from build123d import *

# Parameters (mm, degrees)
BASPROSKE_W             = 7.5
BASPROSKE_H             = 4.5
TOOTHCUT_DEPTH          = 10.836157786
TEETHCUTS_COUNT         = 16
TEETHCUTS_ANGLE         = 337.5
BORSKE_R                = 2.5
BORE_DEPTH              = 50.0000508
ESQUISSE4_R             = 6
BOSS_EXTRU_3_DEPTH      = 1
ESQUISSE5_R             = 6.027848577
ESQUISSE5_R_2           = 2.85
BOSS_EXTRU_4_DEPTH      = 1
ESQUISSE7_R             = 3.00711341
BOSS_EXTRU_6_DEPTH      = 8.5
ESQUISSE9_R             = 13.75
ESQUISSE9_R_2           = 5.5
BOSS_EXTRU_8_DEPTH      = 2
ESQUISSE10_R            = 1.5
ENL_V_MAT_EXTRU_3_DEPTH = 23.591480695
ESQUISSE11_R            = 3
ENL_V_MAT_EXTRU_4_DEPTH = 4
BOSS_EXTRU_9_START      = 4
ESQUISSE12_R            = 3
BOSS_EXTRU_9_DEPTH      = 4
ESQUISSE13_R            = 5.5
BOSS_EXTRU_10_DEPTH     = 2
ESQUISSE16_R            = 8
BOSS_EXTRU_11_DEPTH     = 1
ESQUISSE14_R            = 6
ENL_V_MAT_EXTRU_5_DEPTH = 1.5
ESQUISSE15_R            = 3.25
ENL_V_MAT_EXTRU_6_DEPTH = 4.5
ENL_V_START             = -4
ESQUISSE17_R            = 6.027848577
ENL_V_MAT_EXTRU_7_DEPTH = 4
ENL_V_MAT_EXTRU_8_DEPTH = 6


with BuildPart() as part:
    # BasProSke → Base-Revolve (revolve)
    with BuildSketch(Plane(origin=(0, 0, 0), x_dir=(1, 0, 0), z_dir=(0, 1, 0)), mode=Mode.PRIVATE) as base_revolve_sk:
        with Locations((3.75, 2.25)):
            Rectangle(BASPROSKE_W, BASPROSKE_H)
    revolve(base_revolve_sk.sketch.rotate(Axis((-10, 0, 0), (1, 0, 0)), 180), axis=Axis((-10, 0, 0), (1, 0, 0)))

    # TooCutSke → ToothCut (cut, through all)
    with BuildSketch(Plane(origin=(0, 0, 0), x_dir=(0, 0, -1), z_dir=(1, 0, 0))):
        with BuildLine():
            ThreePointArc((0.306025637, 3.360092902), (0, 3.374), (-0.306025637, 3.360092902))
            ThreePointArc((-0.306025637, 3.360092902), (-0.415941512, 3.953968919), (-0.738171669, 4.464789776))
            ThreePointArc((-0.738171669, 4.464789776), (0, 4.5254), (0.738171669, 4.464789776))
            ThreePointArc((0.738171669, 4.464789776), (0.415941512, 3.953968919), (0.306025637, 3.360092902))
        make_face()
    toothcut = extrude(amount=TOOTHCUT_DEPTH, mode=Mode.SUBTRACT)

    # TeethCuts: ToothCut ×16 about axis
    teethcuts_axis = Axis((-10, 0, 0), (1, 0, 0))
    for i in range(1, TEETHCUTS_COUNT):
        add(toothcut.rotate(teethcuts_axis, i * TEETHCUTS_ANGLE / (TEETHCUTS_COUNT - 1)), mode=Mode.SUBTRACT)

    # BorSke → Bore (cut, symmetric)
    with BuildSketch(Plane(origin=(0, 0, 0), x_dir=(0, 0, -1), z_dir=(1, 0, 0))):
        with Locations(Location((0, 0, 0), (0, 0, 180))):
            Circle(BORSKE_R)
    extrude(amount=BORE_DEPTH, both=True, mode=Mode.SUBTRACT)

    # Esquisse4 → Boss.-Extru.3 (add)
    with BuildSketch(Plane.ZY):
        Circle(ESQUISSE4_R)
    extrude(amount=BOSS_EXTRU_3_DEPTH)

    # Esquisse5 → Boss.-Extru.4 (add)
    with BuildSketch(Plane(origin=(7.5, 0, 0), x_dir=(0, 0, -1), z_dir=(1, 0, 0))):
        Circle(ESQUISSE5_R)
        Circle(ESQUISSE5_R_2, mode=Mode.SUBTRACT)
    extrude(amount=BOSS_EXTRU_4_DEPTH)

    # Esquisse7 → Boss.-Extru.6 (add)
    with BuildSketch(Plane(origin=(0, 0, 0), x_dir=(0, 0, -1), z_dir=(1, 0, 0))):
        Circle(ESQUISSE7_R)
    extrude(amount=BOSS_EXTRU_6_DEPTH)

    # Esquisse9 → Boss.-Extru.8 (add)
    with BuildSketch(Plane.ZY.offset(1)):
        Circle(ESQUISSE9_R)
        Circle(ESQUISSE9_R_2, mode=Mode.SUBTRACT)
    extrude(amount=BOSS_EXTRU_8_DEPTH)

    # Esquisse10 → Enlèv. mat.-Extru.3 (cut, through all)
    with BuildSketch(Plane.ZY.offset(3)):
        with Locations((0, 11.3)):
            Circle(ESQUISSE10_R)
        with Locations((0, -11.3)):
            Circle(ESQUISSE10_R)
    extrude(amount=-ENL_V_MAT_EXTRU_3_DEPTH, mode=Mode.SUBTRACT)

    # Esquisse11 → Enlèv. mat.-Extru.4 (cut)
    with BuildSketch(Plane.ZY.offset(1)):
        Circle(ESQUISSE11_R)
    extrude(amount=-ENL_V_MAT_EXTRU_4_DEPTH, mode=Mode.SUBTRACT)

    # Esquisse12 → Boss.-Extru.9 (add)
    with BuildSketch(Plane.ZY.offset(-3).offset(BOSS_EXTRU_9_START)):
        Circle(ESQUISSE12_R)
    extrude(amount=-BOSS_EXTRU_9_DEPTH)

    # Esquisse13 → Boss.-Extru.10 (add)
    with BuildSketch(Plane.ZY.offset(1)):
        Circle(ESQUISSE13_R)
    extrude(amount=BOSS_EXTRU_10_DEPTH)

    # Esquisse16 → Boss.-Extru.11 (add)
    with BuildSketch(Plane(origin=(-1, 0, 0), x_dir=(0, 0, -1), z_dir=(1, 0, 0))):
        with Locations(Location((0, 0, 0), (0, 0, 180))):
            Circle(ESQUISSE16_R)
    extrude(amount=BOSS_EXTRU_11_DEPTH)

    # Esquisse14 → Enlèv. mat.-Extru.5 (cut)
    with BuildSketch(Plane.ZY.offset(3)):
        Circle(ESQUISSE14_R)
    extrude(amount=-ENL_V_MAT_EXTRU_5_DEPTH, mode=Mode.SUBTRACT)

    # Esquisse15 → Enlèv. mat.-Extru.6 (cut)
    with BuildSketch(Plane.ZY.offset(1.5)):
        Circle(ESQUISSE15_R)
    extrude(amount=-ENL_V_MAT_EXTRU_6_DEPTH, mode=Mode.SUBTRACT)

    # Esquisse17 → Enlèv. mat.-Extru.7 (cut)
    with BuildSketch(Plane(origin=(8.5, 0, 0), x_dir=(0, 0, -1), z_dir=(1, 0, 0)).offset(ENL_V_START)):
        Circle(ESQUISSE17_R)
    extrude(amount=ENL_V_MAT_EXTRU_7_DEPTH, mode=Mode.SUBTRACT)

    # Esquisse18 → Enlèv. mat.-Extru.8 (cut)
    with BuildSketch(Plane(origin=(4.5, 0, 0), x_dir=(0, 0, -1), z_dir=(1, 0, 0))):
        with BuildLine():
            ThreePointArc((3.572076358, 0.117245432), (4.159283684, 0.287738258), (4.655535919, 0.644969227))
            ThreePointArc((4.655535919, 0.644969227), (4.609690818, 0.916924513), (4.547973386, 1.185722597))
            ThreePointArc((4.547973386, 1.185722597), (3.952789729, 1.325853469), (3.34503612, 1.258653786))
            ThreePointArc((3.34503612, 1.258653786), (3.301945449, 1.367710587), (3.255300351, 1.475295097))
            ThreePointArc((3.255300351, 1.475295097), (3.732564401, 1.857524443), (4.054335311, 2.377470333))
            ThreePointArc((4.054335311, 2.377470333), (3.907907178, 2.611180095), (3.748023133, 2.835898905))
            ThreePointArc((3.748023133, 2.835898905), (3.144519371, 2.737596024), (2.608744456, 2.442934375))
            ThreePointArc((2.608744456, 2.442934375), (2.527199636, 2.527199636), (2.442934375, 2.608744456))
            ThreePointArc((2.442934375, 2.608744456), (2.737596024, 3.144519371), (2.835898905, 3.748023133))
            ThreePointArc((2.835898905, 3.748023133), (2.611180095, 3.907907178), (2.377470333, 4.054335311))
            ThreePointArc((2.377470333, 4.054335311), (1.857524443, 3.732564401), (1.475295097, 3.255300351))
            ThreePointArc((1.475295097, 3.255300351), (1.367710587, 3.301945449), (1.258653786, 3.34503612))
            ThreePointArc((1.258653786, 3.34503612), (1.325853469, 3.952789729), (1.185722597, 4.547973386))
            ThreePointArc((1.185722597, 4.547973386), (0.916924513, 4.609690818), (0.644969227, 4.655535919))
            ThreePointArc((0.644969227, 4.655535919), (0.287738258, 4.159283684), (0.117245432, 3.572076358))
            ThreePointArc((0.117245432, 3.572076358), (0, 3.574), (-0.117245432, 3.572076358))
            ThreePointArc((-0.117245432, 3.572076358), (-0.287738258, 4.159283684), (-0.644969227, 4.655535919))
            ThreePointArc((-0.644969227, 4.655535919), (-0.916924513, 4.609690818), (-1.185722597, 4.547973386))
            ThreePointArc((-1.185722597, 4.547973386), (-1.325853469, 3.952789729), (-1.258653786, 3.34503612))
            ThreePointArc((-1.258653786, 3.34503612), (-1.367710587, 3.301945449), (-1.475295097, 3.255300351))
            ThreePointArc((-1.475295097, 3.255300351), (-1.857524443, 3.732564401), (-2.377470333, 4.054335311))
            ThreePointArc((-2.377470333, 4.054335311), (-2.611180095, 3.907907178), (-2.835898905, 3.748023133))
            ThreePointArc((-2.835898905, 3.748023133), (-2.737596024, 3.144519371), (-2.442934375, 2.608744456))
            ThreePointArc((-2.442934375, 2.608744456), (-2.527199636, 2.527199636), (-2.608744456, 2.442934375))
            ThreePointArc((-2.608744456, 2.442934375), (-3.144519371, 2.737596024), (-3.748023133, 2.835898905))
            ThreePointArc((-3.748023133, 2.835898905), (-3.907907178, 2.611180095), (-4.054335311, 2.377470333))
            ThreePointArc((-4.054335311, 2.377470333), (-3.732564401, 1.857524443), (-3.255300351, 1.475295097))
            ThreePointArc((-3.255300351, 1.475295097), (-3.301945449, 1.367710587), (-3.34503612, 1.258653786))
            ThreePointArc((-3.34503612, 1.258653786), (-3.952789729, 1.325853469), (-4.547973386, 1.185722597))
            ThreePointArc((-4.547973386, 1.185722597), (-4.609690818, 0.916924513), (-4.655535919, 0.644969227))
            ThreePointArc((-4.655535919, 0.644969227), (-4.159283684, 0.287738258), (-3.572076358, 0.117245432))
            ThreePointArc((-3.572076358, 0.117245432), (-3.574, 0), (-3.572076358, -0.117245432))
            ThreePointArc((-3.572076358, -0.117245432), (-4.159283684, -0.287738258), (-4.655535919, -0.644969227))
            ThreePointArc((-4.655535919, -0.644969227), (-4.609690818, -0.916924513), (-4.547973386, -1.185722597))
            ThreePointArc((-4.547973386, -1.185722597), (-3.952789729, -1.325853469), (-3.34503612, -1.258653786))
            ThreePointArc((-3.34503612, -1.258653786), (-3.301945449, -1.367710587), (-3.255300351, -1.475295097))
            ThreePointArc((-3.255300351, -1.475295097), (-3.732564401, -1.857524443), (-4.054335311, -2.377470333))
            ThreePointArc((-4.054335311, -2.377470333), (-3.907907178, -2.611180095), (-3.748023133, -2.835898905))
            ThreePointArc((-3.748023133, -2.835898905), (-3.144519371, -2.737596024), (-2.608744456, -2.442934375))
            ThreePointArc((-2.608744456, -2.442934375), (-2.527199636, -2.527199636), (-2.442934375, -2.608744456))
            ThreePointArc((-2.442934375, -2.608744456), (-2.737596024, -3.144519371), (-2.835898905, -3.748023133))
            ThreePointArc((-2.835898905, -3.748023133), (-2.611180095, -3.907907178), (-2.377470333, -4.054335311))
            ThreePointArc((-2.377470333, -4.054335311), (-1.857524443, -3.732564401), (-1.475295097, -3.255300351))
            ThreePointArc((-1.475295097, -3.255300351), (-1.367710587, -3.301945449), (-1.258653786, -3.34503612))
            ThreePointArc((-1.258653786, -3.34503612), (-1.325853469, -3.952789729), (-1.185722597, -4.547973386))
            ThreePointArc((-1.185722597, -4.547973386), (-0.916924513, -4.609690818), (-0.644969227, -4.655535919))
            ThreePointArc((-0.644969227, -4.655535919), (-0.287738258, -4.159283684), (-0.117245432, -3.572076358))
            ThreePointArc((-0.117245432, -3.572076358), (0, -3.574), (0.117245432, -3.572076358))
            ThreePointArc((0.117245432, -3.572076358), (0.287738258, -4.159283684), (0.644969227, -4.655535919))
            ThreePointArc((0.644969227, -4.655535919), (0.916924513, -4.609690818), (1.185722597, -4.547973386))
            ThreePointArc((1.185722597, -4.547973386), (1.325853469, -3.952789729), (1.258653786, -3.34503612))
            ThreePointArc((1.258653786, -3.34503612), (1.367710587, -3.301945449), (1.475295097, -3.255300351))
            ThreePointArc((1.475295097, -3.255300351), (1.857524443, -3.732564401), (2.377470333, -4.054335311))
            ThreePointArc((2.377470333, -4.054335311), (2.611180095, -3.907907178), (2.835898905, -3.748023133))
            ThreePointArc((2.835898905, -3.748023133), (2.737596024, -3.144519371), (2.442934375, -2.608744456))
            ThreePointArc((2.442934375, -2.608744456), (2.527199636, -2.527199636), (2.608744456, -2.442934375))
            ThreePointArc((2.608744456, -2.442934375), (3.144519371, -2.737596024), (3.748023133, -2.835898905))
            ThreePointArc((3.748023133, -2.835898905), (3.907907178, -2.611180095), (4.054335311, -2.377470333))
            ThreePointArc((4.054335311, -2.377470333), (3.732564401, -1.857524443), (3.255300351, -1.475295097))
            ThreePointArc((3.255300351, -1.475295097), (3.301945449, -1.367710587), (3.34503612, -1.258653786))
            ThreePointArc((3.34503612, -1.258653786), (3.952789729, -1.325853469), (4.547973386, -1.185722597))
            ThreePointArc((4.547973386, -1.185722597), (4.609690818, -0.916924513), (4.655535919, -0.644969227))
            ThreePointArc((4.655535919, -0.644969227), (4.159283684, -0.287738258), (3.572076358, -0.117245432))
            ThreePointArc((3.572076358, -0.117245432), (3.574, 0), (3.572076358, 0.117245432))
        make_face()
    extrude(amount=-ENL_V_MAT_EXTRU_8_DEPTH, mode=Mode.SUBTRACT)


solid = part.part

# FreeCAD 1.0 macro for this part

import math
import FreeCAD as App
import Part
import Sketcher
from FreeCAD import Vector


def add_polygon(sketch, points):
    """Adds a closed chain of lines whose ends are joined by coincident constraints."""
    first, n = sketch.GeometryCount, len(points)
    for a, b in zip(points, points[1:] + points[:1]):
        sketch.addGeometry(Part.LineSegment(App.Vector(*a, 0), App.Vector(*b, 0)), False)
    for i in range(n):
        sketch.addConstraint(Sketcher.Constraint("Coincident", first + i, 2, first + (i + 1) % n, 1))

doc = App.newDocument("Part")
body = doc.addObject("PartDesign::Body", "Body")

# Sketch on XZ plane
sketch1 = doc.addObject("Sketcher::SketchObject", "Sketch")
body.addObject(sketch1)
sketch1.AttachmentSupport = (doc.XZ_Plane, [""])
sketch1.MapMode = "FlatFace"
add_polygon(sketch1, [(0, -4.5), (0, 0), (7.5, 0), (7.5, -4.5)])  # lines 0-3
sketch1.addConstraint([
    Sketcher.Constraint("Vertical", 0),
    Sketcher.Constraint("Horizontal", 1),
    Sketcher.Constraint("Vertical", 2),
    Sketcher.Constraint("Horizontal", 3),
    Sketcher.Constraint("Coincident", 0, 2, -1, 1),
    Sketcher.Constraint("DistanceX", 1, 1, 1, 2, 7.5),
    Sketcher.Constraint("DistanceY", 0, 1, 0, 2, 4.5),
])
revolution = doc.addObject("PartDesign::Revolution", "Revolution")
body.addObject(revolution)
revolution.Profile = sketch1
revolution.ReferenceAxis = (sketch1, ["H_Axis"])
revolution.Angle = 360

# Sketch on YZ plane
sketch2 = doc.addObject("Sketcher::SketchObject", "Sketch001")
body.addObject(sketch2)
sketch2.AttachmentSupport = (doc.YZ_Plane, [""])
sketch2.MapMode = "FlatFace"
sketch2.addGeometry([
    Part.ArcOfCircle(Part.Circle(Vector(0, 0, 0), Vector(0, 0, 1), 3.4), math.radians(-5.2), math.radians(5.2)),
    Part.ArcOfCircle(Part.Circle(Vector(3.4, -1.9, 0), Vector(0, 0, 1), 1.6), math.radians(47), math.radians(90)),
    Part.ArcOfCircle(Part.Circle(Vector(0, 0, 0), Vector(0, 0, 1), 4.5), math.radians(-9.39), math.radians(9.39)),
    Part.ArcOfCircle(Part.Circle(Vector(3.4, 1.9, 0), Vector(0, 0, 1), 1.6), math.radians(-90), math.radians(-47)),
], False)
sketch2.addConstraint([
    Sketcher.Constraint("Coincident", 0, 1, 1, 2),
    Sketcher.Constraint("Coincident", 1, 1, 2, 1),
    Sketcher.Constraint("Coincident", 2, 2, 3, 2),
    Sketcher.Constraint("Coincident", 3, 1, 0, 2),
    Sketcher.Constraint("Coincident", 0, 3, -1, 1),
    Sketcher.Constraint("Coincident", 2, 3, -1, 1),
    Sketcher.Constraint("Equal", 1, 3),
    Sketcher.Constraint("Symmetric", 1, 3, 3, 3, -1),
    Sketcher.Constraint("Radius", 1, 1.6),
    Sketcher.Constraint("Radius", 0, 3.374),
    Sketcher.Constraint("Radius", 2, 4.5254),
    Sketcher.Constraint("DistanceX", -1, 1, 1, 3, 3.371078),
    Sketcher.Constraint("DistanceX", -1, 1, 1, 1, 4.46479),
])
pocket1 = doc.addObject("PartDesign::Pocket", "Pocket")
body.addObject(pocket1)
pocket1.Profile = sketch2
pocket1.Type = "ThroughAll"
pocket1.Reversed = True
doc.recompute()

polarpattern = doc.addObject("PartDesign::PolarPattern", "PolarPattern")
body.addObject(polarpattern)
polarpattern.Originals = [pocket1]
polarpattern.Axis = (doc.X_Axis, [""])
polarpattern.Angle = 360
polarpattern.Occurrences = 16
body.Tip = polarpattern

# Sketch on YZ plane
sketch3 = doc.addObject("Sketcher::SketchObject", "Sketch002")
body.addObject(sketch3)
sketch3.AttachmentSupport = (doc.YZ_Plane, [""])
sketch3.MapMode = "FlatFace"
sketch3.addGeometry(Part.Circle(Vector(0, 0, 0), Vector(0, 0, 1), 2.5), False)
sketch3.addConstraint([
    Sketcher.Constraint("Coincident", 0, 3, -1, 1),
    Sketcher.Constraint("Diameter", 0, 5.0),
])
pocket2 = doc.addObject("PartDesign::Pocket", "Pocket001")
body.addObject(pocket2)
pocket2.Profile = sketch3
pocket2.Length = 100.000102
pocket2.Midplane = True

# Sketch on YZ plane
sketch4 = doc.addObject("Sketcher::SketchObject", "Sketch003")
body.addObject(sketch4)
sketch4.AttachmentSupport = (doc.YZ_Plane, [""])
sketch4.MapMode = "FlatFace"
sketch4.addGeometry(Part.Circle(Vector(0, 0, 0), Vector(0, 0, 1), 6), False)
sketch4.addConstraint([
    Sketcher.Constraint("Coincident", 0, 3, -1, 1),
    Sketcher.Constraint("Diameter", 0, 12.0),
])
pad1 = doc.addObject("PartDesign::Pad", "Pad")
body.addObject(pad1)
pad1.Profile = sketch4
pad1.Length = 1
pad1.Reversed = True

# Sketch on YZ plane
sketch5 = doc.addObject("Sketcher::SketchObject", "Sketch004")
body.addObject(sketch5)
sketch5.AttachmentSupport = (doc.YZ_Plane, [""])
sketch5.MapMode = "FlatFace"
sketch5.AttachmentOffset = App.Placement(Vector(0, 0, 7.5), App.Rotation())
sketch5.addGeometry([
    Part.Circle(Vector(0, 0, 0), Vector(0, 0, 1), 6),
    Part.Circle(Vector(0, 0, 0), Vector(0, 0, 1), 2.9),
], False)
sketch5.addConstraint([
    Sketcher.Constraint("Coincident", 0, 3, -1, 1),
    Sketcher.Constraint("Coincident", 1, 3, -1, 1),
    Sketcher.Constraint("Diameter", 1, 5.7),
    Sketcher.Constraint("Diameter", 0, 12.055697),
])
pad2 = doc.addObject("PartDesign::Pad", "Pad001")
body.addObject(pad2)
pad2.Profile = sketch5
pad2.Length = 1

# Sketch on YZ plane
sketch6 = doc.addObject("Sketcher::SketchObject", "Sketch005")
body.addObject(sketch6)
sketch6.AttachmentSupport = (doc.YZ_Plane, [""])
sketch6.MapMode = "FlatFace"
sketch6.addGeometry(Part.Circle(Vector(0, 0, 0), Vector(0, 0, 1), 3), False)
sketch6.addConstraint([
    Sketcher.Constraint("Coincident", 0, 3, -1, 1),
    Sketcher.Constraint("Diameter", 0, 6.014227),
])
pad3 = doc.addObject("PartDesign::Pad", "Pad002")
body.addObject(pad3)
pad3.Profile = sketch6
pad3.Length = 8.5

# Sketch on YZ plane
sketch7 = doc.addObject("Sketcher::SketchObject", "Sketch006")
body.addObject(sketch7)
sketch7.AttachmentSupport = (doc.YZ_Plane, [""])
sketch7.MapMode = "FlatFace"
sketch7.AttachmentOffset = App.Placement(Vector(0, 0, -1), App.Rotation())
sketch7.addGeometry([
    Part.Circle(Vector(0, 0, 0), Vector(0, 0, 1), 14),
    Part.Circle(Vector(0, 0, 0), Vector(0, 0, 1), 6),
], False)
sketch7.addConstraint([
    Sketcher.Constraint("Coincident", 0, 3, -1, 1),
    Sketcher.Constraint("Coincident", 1, 3, -1, 1),
    Sketcher.Constraint("Diameter", 1, 11.0),
    Sketcher.Constraint("Diameter", 0, 27.5),
])
pad4 = doc.addObject("PartDesign::Pad", "Pad003")
body.addObject(pad4)
pad4.Profile = sketch7
pad4.Length = 2
pad4.Reversed = True

# Sketch on YZ plane
sketch8 = doc.addObject("Sketcher::SketchObject", "Sketch007")
body.addObject(sketch8)
sketch8.AttachmentSupport = (doc.YZ_Plane, [""])
sketch8.MapMode = "FlatFace"
sketch8.AttachmentOffset = App.Placement(Vector(0, 0, -3), App.Rotation())
sketch8.addGeometry([
    Part.Circle(Vector(11.3, 0, 0), Vector(0, 0, 1), 1.5),
    Part.Circle(Vector(-11.3, 0, 0), Vector(0, 0, 1), 1.5),
], False)
sketch8.addConstraint([
    Sketcher.Constraint("Equal", 0, 1),
    Sketcher.Constraint("Symmetric", 0, 3, 1, 3, -1, 1),
    Sketcher.Constraint("PointOnObject", 0, 3, -1),
    Sketcher.Constraint("Diameter", 0, 3.0),
    Sketcher.Constraint("DistanceX", -1, 1, 0, 3, 11.3),
])
pocket3 = doc.addObject("PartDesign::Pocket", "Pocket002")
body.addObject(pocket3)
pocket3.Profile = sketch8
pocket3.Type = "ThroughAll"
pocket3.Reversed = True

# Sketch on YZ plane
sketch9 = doc.addObject("Sketcher::SketchObject", "Sketch008")
body.addObject(sketch9)
sketch9.AttachmentSupport = (doc.YZ_Plane, [""])
sketch9.MapMode = "FlatFace"
sketch9.AttachmentOffset = App.Placement(Vector(0, 0, -1), App.Rotation())
sketch9.addGeometry(Part.Circle(Vector(0, 0, 0), Vector(0, 0, 1), 3), False)
sketch9.addConstraint([
    Sketcher.Constraint("Coincident", 0, 3, -1, 1),
    Sketcher.Constraint("Diameter", 0, 6.0),
])
pocket4 = doc.addObject("PartDesign::Pocket", "Pocket003")
body.addObject(pocket4)
pocket4.Profile = sketch9
pocket4.Length = 4
pocket4.Reversed = True

# Sketch on YZ plane
sketch10 = doc.addObject("Sketcher::SketchObject", "Sketch009")
body.addObject(sketch10)
sketch10.AttachmentSupport = (doc.YZ_Plane, [""])
sketch10.MapMode = "FlatFace"
sketch10.AttachmentOffset = App.Placement(Vector(0, 0, -1), App.Rotation())
sketch10.addGeometry(Part.Circle(Vector(0, 0, 0), Vector(0, 0, 1), 3), False)
sketch10.addConstraint([
    Sketcher.Constraint("Coincident", 0, 3, -1, 1),
    Sketcher.Constraint("Diameter", 0, 6.0),
])
pad5 = doc.addObject("PartDesign::Pad", "Pad004")
body.addObject(pad5)
pad5.Profile = sketch10
pad5.Length = 4

# Sketch on YZ plane
sketch11 = doc.addObject("Sketcher::SketchObject", "Sketch010")
body.addObject(sketch11)
sketch11.AttachmentSupport = (doc.YZ_Plane, [""])
sketch11.MapMode = "FlatFace"
sketch11.AttachmentOffset = App.Placement(Vector(0, 0, -1), App.Rotation())
sketch11.addGeometry(Part.Circle(Vector(0, 0, 0), Vector(0, 0, 1), 6), False)
sketch11.addConstraint([
    Sketcher.Constraint("Coincident", 0, 3, -1, 1),
    Sketcher.Constraint("Diameter", 0, 11.0),
])
pad6 = doc.addObject("PartDesign::Pad", "Pad005")
body.addObject(pad6)
pad6.Profile = sketch11
pad6.Length = 2
pad6.Reversed = True

# Sketch on YZ plane
sketch12 = doc.addObject("Sketcher::SketchObject", "Sketch011")
body.addObject(sketch12)
sketch12.AttachmentSupport = (doc.YZ_Plane, [""])
sketch12.MapMode = "FlatFace"
sketch12.AttachmentOffset = App.Placement(Vector(0, 0, -1), App.Rotation())
sketch12.addGeometry(Part.Circle(Vector(0, 0, 0), Vector(0, 0, 1), 8), False)
sketch12.addConstraint([
    Sketcher.Constraint("Coincident", 0, 3, -1, 1),
    Sketcher.Constraint("Diameter", 0, 16.0),
])
pad7 = doc.addObject("PartDesign::Pad", "Pad006")
body.addObject(pad7)
pad7.Profile = sketch12
pad7.Length = 1

# Sketch on YZ plane
sketch13 = doc.addObject("Sketcher::SketchObject", "Sketch012")
body.addObject(sketch13)
sketch13.AttachmentSupport = (doc.YZ_Plane, [""])
sketch13.MapMode = "FlatFace"
sketch13.AttachmentOffset = App.Placement(Vector(0, 0, -3), App.Rotation())
sketch13.addGeometry(Part.Circle(Vector(0, 0, 0), Vector(0, 0, 1), 6), False)
sketch13.addConstraint([
    Sketcher.Constraint("Coincident", 0, 3, -1, 1),
    Sketcher.Constraint("Diameter", 0, 12.0),
])
pocket5 = doc.addObject("PartDesign::Pocket", "Pocket004")
body.addObject(pocket5)
pocket5.Profile = sketch13
pocket5.Length = 1.5
pocket5.Reversed = True

# Sketch on YZ plane
sketch14 = doc.addObject("Sketcher::SketchObject", "Sketch013")
body.addObject(sketch14)
sketch14.AttachmentSupport = (doc.YZ_Plane, [""])
sketch14.MapMode = "FlatFace"
sketch14.AttachmentOffset = App.Placement(Vector(0, 0, -1.5), App.Rotation())
sketch14.addGeometry(Part.Circle(Vector(0, 0, 0), Vector(0, 0, 1), 3.2), False)
sketch14.addConstraint([
    Sketcher.Constraint("Coincident", 0, 3, -1, 1),
    Sketcher.Constraint("Diameter", 0, 6.5),
])
pocket6 = doc.addObject("PartDesign::Pocket", "Pocket005")
body.addObject(pocket6)
pocket6.Profile = sketch14
pocket6.Length = 4.5
pocket6.Reversed = True

# Sketch on YZ plane
sketch15 = doc.addObject("Sketcher::SketchObject", "Sketch014")
body.addObject(sketch15)
sketch15.AttachmentSupport = (doc.YZ_Plane, [""])
sketch15.MapMode = "FlatFace"
sketch15.AttachmentOffset = App.Placement(Vector(0, 0, 4.5), App.Rotation())
sketch15.addGeometry(Part.Circle(Vector(0, 0, 0), Vector(0, 0, 1), 6), False)
sketch15.addConstraint([
    Sketcher.Constraint("Coincident", 0, 3, -1, 1),
    Sketcher.Constraint("Diameter", 0, 12.055697),
])
pocket7 = doc.addObject("PartDesign::Pocket", "Pocket006")
body.addObject(pocket7)
pocket7.Profile = sketch15
pocket7.Length = 4
pocket7.Reversed = True

# Sketch on YZ plane
sketch16 = doc.addObject("Sketcher::SketchObject", "Sketch015")
body.addObject(sketch16)
sketch16.AttachmentSupport = (doc.YZ_Plane, [""])
sketch16.MapMode = "FlatFace"
sketch16.AttachmentOffset = App.Placement(Vector(0, 0, 4.5), App.Rotation())
sketch16.addGeometry([
    Part.ArcOfCircle(Part.Circle(Vector(1.91, -3.37, 0), Vector(0, 0, 1), 1.8), math.radians(-174), math.radians(-134)),  # 0
    Part.ArcOfCircle(Part.Circle(Vector(0, 0, 0), Vector(0, 0, 1), 4.7), math.radians(-82.11), math.radians(-75.39)),  # 1
    Part.ArcOfCircle(Part.Circle(Vector(-0.47, -3.84, 0), Vector(0, 0, 1), 1.8), math.radians(-23), math.radians(16)),  # 2
    Part.ArcOfCircle(Part.Circle(Vector(0, 0, 0), Vector(0, 0, 1), 3.57), math.radians(-69.38), math.radians(-65.62)),  # 3
    Part.ArcOfCircle(Part.Circle(Vector(3.05, -2.39, 0), Vector(0, 0, 1), 1.8), math.radians(-151), math.radians(-112)),  # 4
    Part.ArcOfCircle(Part.Circle(Vector(0, 0, 0), Vector(0, 0, 1), 4.7), math.radians(-59.61), math.radians(-52.89)),  # 5
    Part.ArcOfCircle(Part.Circle(Vector(1.04, -3.73, 0), Vector(0, 0, 1), 1.8), math.radians(-1), math.radians(39)),  # 6
    Part.ArcOfCircle(Part.Circle(Vector(0, 0, 0), Vector(0, 0, 1), 3.57), math.radians(-46.88), math.radians(-43.12)),  # 7
    Part.ArcOfCircle(Part.Circle(Vector(3.73, -1.04, 0), Vector(0, 0, 1), 1.8), math.radians(-129), math.radians(-89)),  # 8
    Part.ArcOfCircle(Part.Circle(Vector(0, 0, 0), Vector(0, 0, 1), 4.7), math.radians(-37.11), math.radians(-30.39)),  # 9
    Part.ArcOfCircle(Part.Circle(Vector(2.39, -3.05, 0), Vector(0, 0, 1), 1.8), math.radians(22), math.radians(61)),  # 10
    Part.ArcOfCircle(Part.Circle(Vector(0, 0, 0), Vector(0, 0, 1), 3.57), math.radians(-24.38), math.radians(-20.62)),  # 11
    Part.ArcOfCircle(Part.Circle(Vector(3.84, 0.47, 0), Vector(0, 0, 1), 1.8), math.radians(-106), math.radians(-67)),  # 12
    Part.ArcOfCircle(Part.Circle(Vector(0, 0, 0), Vector(0, 0, 1), 4.7), math.radians(-14.61), math.radians(-7.89)),  # 13
    Part.ArcOfCircle(Part.Circle(Vector(3.37, -1.91, 0), Vector(0, 0, 1), 1.8), math.radians(44), math.radians(84)),  # 14
    Part.ArcOfCircle(Part.Circle(Vector(0, 0, 0), Vector(0, 0, 1), 3.57), math.radians(-1.88), math.radians(1.88)),  # 15
    Part.ArcOfCircle(Part.Circle(Vector(3.37, 1.91, 0), Vector(0, 0, 1), 1.8), math.radians(-84), math.radians(-44)),  # 16
    Part.ArcOfCircle(Part.Circle(Vector(0, 0, 0), Vector(0, 0, 1), 4.7), math.radians(7.89), math.radians(14.61)),  # 17
    Part.ArcOfCircle(Part.Circle(Vector(3.84, -0.47, 0), Vector(0, 0, 1), 1.8), math.radians(67), math.radians(106)),  # 18
    Part.ArcOfCircle(Part.Circle(Vector(0, 0, 0), Vector(0, 0, 1), 3.57), math.radians(20.62), math.radians(24.38)),  # 19
    Part.ArcOfCircle(Part.Circle(Vector(2.39, 3.05, 0), Vector(0, 0, 1), 1.8), math.radians(-61), math.radians(-22)),  # 20
    Part.ArcOfCircle(Part.Circle(Vector(0, 0, 0), Vector(0, 0, 1), 4.7), math.radians(30.39), math.radians(37.11)),  # 21
    Part.ArcOfCircle(Part.Circle(Vector(3.73, 1.04, 0), Vector(0, 0, 1), 1.8), math.radians(89), math.radians(129)),  # 22
    Part.ArcOfCircle(Part.Circle(Vector(0, 0, 0), Vector(0, 0, 1), 3.57), math.radians(43.12), math.radians(46.88)),  # 23
    Part.ArcOfCircle(Part.Circle(Vector(1.04, 3.73, 0), Vector(0, 0, 1), 1.8), math.radians(-39), math.radians(1)),  # 24
    Part.ArcOfCircle(Part.Circle(Vector(0, 0, 0), Vector(0, 0, 1), 4.7), math.radians(52.89), math.radians(59.61)),  # 25
    Part.ArcOfCircle(Part.Circle(Vector(3.05, 2.39, 0), Vector(0, 0, 1), 1.8), math.radians(112), math.radians(151)),  # 26
    Part.ArcOfCircle(Part.Circle(Vector(0, 0, 0), Vector(0, 0, 1), 3.57), math.radians(65.62), math.radians(69.38)),  # 27
    Part.ArcOfCircle(Part.Circle(Vector(-0.47, 3.84, 0), Vector(0, 0, 1), 1.8), math.radians(-16), math.radians(23)),  # 28
    Part.ArcOfCircle(Part.Circle(Vector(0, 0, 0), Vector(0, 0, 1), 4.7), math.radians(75.39), math.radians(82.11)),  # 29
    Part.ArcOfCircle(Part.Circle(Vector(1.91, 3.37, 0), Vector(0, 0, 1), 1.8), math.radians(134), math.radians(174)),  # 30
    Part.ArcOfCircle(Part.Circle(Vector(0, 0, 0), Vector(0, 0, 1), 3.57), math.radians(88.12), math.radians(91.88)),  # 31
    Part.ArcOfCircle(Part.Circle(Vector(-1.91, 3.37, 0), Vector(0, 0, 1), 1.8), math.radians(6), math.radians(46)),  # 32
    Part.ArcOfCircle(Part.Circle(Vector(0, 0, 0), Vector(0, 0, 1), 4.7), math.radians(97.89), math.radians(104.61)),  # 33
    Part.ArcOfCircle(Part.Circle(Vector(0.47, 3.84, 0), Vector(0, 0, 1), 1.8), math.radians(157), math.radians(196)),  # 34
    Part.ArcOfCircle(Part.Circle(Vector(0, 0, 0), Vector(0, 0, 1), 3.57), math.radians(110.62), math.radians(114.38)),  # 35
    Part.ArcOfCircle(Part.Circle(Vector(-3.05, 2.39, 0), Vector(0, 0, 1), 1.8), math.radians(29), math.radians(68)),  # 36
    Part.ArcOfCircle(Part.Circle(Vector(0, 0, 0), Vector(0, 0, 1), 4.7), math.radians(120.39), math.radians(127.11)),  # 37
    Part.ArcOfCircle(Part.Circle(Vector(-1.04, 3.73, 0), Vector(0, 0, 1), 1.8), math.radians(179), math.radians(219)),  # 38
    Part.ArcOfCircle(Part.Circle(Vector(0, 0, 0), Vector(0, 0, 1), 3.57), math.radians(133.12), math.radians(136.88)),  # 39
    Part.ArcOfCircle(Part.Circle(Vector(-3.73, 1.04, 0), Vector(0, 0, 1), 1.8), math.radians(51), math.radians(91)),  # 40
    Part.ArcOfCircle(Part.Circle(Vector(0, 0, 0), Vector(0, 0, 1), 4.7), math.radians(142.89), math.radians(149.61)),  # 41
    Part.ArcOfCircle(Part.Circle(Vector(-2.39, 3.05, 0), Vector(0, 0, 1), 1.8), math.radians(-158), math.radians(-119)),  # 42
    Part.ArcOfCircle(Part.Circle(Vector(0, 0, 0), Vector(0, 0, 1), 3.57), math.radians(155.62), math.radians(159.38)),  # 43
    Part.ArcOfCircle(Part.Circle(Vector(-3.84, -0.47, 0), Vector(0, 0, 1), 1.8), math.radians(74), math.radians(113)),  # 44
    Part.ArcOfCircle(Part.Circle(Vector(0, 0, 0), Vector(0, 0, 1), 4.7), math.radians(165.39), math.radians(172.11)),  # 45
    Part.ArcOfCircle(Part.Circle(Vector(-3.37, 1.91, 0), Vector(0, 0, 1), 1.8), math.radians(-136), math.radians(-96)),  # 46
    Part.ArcOfCircle(Part.Circle(Vector(0, 0, 0), Vector(0, 0, 1), 3.57), math.radians(178.12), math.radians(181.88)),  # 47
    Part.ArcOfCircle(Part.Circle(Vector(-3.37, -1.91, 0), Vector(0, 0, 1), 1.8), math.radians(96), math.radians(136)),  # 48
    Part.ArcOfCircle(Part.Circle(Vector(0, 0, 0), Vector(0, 0, 1), 4.7), math.radians(-172.11), math.radians(-165.39)),  # 49
    Part.ArcOfCircle(Part.Circle(Vector(-3.84, 0.47, 0), Vector(0, 0, 1), 1.8), math.radians(-113), math.radians(-74)),  # 50
    Part.ArcOfCircle(Part.Circle(Vector(0, 0, 0), Vector(0, 0, 1), 3.57), math.radians(-159.38), math.radians(-155.62)),  # 51
    Part.ArcOfCircle(Part.Circle(Vector(-2.39, -3.05, 0), Vector(0, 0, 1), 1.8), math.radians(119), math.radians(158)),  # 52
    Part.ArcOfCircle(Part.Circle(Vector(0, 0, 0), Vector(0, 0, 1), 4.7), math.radians(-149.61), math.radians(-142.89)),  # 53
    Part.ArcOfCircle(Part.Circle(Vector(-3.73, -1.04, 0), Vector(0, 0, 1), 1.8), math.radians(-91), math.radians(-51)),  # 54
    Part.ArcOfCircle(Part.Circle(Vector(0, 0, 0), Vector(0, 0, 1), 3.57), math.radians(-136.88), math.radians(-133.12)),  # 55
    Part.ArcOfCircle(Part.Circle(Vector(-1.04, -3.73, 0), Vector(0, 0, 1), 1.8), math.radians(141), math.radians(181)),  # 56
    Part.ArcOfCircle(Part.Circle(Vector(0, 0, 0), Vector(0, 0, 1), 4.7), math.radians(-127.11), math.radians(-120.39)),  # 57
    Part.ArcOfCircle(Part.Circle(Vector(-3.05, -2.39, 0), Vector(0, 0, 1), 1.8), math.radians(-68), math.radians(-29)),  # 58
    Part.ArcOfCircle(Part.Circle(Vector(0, 0, 0), Vector(0, 0, 1), 3.57), math.radians(-114.38), math.radians(-110.62)),  # 59
    Part.ArcOfCircle(Part.Circle(Vector(0.47, -3.84, 0), Vector(0, 0, 1), 1.8), math.radians(164), math.radians(203)),  # 60
    Part.ArcOfCircle(Part.Circle(Vector(0, 0, 0), Vector(0, 0, 1), 4.7), math.radians(-104.61), math.radians(-97.89)),  # 61
    Part.ArcOfCircle(Part.Circle(Vector(-1.91, -3.37, 0), Vector(0, 0, 1), 1.8), math.radians(-46), math.radians(-6)),  # 62
    Part.ArcOfCircle(Part.Circle(Vector(0, 0, 0), Vector(0, 0, 1), 3.57), math.radians(-91.88), math.radians(-88.12)),  # 63
], False)
sketch16.addConstraint([
    Sketcher.Constraint("Coincident", 0, 2, 1, 1),
    Sketcher.Constraint("Coincident", 1, 2, 2, 1),
    Sketcher.Constraint("Coincident", 2, 2, 3, 1),
    Sketcher.Constraint("Coincident", 3, 2, 4, 1),
    Sketcher.Constraint("Coincident", 4, 2, 5, 1),
    Sketcher.Constraint("Coincident", 5, 2, 6, 1),
    Sketcher.Constraint("Coincident", 6, 2, 7, 1),
    Sketcher.Constraint("Coincident", 7, 2, 8, 1),
    Sketcher.Constraint("Coincident", 8, 2, 9, 1),
    Sketcher.Constraint("Coincident", 9, 2, 10, 1),
    Sketcher.Constraint("Coincident", 10, 2, 11, 1),
    Sketcher.Constraint("Coincident", 11, 2, 12, 1),
    Sketcher.Constraint("Coincident", 12, 2, 13, 1),
    Sketcher.Constraint("Coincident", 13, 2, 14, 1),
    Sketcher.Constraint("Coincident", 14, 2, 15, 1),
    Sketcher.Constraint("Coincident", 15, 2, 16, 1),
    Sketcher.Constraint("Coincident", 16, 2, 17, 1),
    Sketcher.Constraint("Coincident", 17, 2, 18, 1),
    Sketcher.Constraint("Coincident", 18, 2, 19, 1),
    Sketcher.Constraint("Coincident", 19, 2, 20, 1),
    Sketcher.Constraint("Coincident", 20, 2, 21, 1),
    Sketcher.Constraint("Coincident", 21, 2, 22, 1),
    Sketcher.Constraint("Coincident", 22, 2, 23, 1),
    Sketcher.Constraint("Coincident", 23, 2, 24, 1),
    Sketcher.Constraint("Coincident", 24, 2, 25, 1),
    Sketcher.Constraint("Coincident", 25, 2, 26, 1),
    Sketcher.Constraint("Coincident", 26, 2, 27, 1),
    Sketcher.Constraint("Coincident", 27, 2, 28, 1),
    Sketcher.Constraint("Coincident", 28, 2, 29, 1),
    Sketcher.Constraint("Coincident", 29, 2, 30, 1),
    Sketcher.Constraint("Coincident", 30, 2, 31, 1),
    Sketcher.Constraint("Coincident", 31, 2, 32, 1),
    Sketcher.Constraint("Coincident", 32, 2, 33, 1),
    Sketcher.Constraint("Coincident", 33, 2, 34, 1),
    Sketcher.Constraint("Coincident", 34, 2, 35, 1),
    Sketcher.Constraint("Coincident", 35, 2, 36, 1),
    Sketcher.Constraint("Coincident", 36, 2, 37, 1),
    Sketcher.Constraint("Coincident", 37, 2, 38, 1),
    Sketcher.Constraint("Coincident", 38, 2, 39, 1),
    Sketcher.Constraint("Coincident", 39, 2, 40, 1),
    Sketcher.Constraint("Coincident", 40, 2, 41, 1),
    Sketcher.Constraint("Coincident", 41, 2, 42, 1),
    Sketcher.Constraint("Coincident", 42, 2, 43, 1),
    Sketcher.Constraint("Coincident", 43, 2, 44, 1),
    Sketcher.Constraint("Coincident", 44, 2, 45, 1),
    Sketcher.Constraint("Coincident", 45, 2, 46, 1),
    Sketcher.Constraint("Coincident", 46, 2, 47, 1),
    Sketcher.Constraint("Coincident", 47, 2, 48, 1),
    Sketcher.Constraint("Coincident", 48, 2, 49, 1),
    Sketcher.Constraint("Coincident", 49, 2, 50, 1),
    Sketcher.Constraint("Coincident", 50, 2, 51, 1),
    Sketcher.Constraint("Coincident", 51, 2, 52, 1),
    Sketcher.Constraint("Coincident", 52, 2, 53, 1),
    Sketcher.Constraint("Coincident", 53, 2, 54, 1),
    Sketcher.Constraint("Coincident", 54, 2, 55, 1),
    Sketcher.Constraint("Coincident", 55, 2, 56, 1),
    Sketcher.Constraint("Coincident", 56, 2, 57, 1),
    Sketcher.Constraint("Coincident", 57, 2, 58, 1),
    Sketcher.Constraint("Coincident", 58, 2, 59, 1),
    Sketcher.Constraint("Coincident", 59, 2, 60, 1),
    Sketcher.Constraint("Coincident", 60, 2, 61, 1),
    Sketcher.Constraint("Coincident", 61, 2, 62, 1),
    Sketcher.Constraint("Coincident", 62, 2, 63, 1),
    Sketcher.Constraint("Coincident", 63, 2, 0, 1),
    Sketcher.Constraint("Coincident", 1, 3, -1, 1),
    Sketcher.Constraint("Coincident", 3, 3, -1, 1),
    Sketcher.Constraint("Coincident", 5, 3, -1, 1),
    Sketcher.Constraint("Coincident", 7, 3, -1, 1),
    Sketcher.Constraint("Coincident", 9, 3, -1, 1),
    Sketcher.Constraint("Coincident", 11, 3, -1, 1),
    Sketcher.Constraint("Coincident", 13, 3, -1, 1),
    Sketcher.Constraint("Coincident", 15, 3, -1, 1),
    Sketcher.Constraint("Coincident", 17, 3, -1, 1),
    Sketcher.Constraint("Coincident", 19, 3, -1, 1),
    Sketcher.Constraint("Coincident", 21, 3, -1, 1),
    Sketcher.Constraint("Coincident", 23, 3, -1, 1),
    Sketcher.Constraint("Coincident", 25, 3, -1, 1),
    Sketcher.Constraint("Coincident", 27, 3, -1, 1),
    Sketcher.Constraint("Coincident", 29, 3, -1, 1),
    Sketcher.Constraint("Coincident", 31, 3, -1, 1),
    Sketcher.Constraint("Coincident", 33, 3, -1, 1),
    Sketcher.Constraint("Coincident", 35, 3, -1, 1),
    Sketcher.Constraint("Coincident", 37, 3, -1, 1),
    Sketcher.Constraint("Coincident", 39, 3, -1, 1),
    Sketcher.Constraint("Coincident", 41, 3, -1, 1),
    Sketcher.Constraint("Coincident", 43, 3, -1, 1),
    Sketcher.Constraint("Coincident", 45, 3, -1, 1),
    Sketcher.Constraint("Coincident", 47, 3, -1, 1),
    Sketcher.Constraint("Coincident", 49, 3, -1, 1),
    Sketcher.Constraint("Coincident", 51, 3, -1, 1),
    Sketcher.Constraint("Coincident", 53, 3, -1, 1),
    Sketcher.Constraint("Coincident", 55, 3, -1, 1),
    Sketcher.Constraint("Coincident", 57, 3, -1, 1),
    Sketcher.Constraint("Coincident", 59, 3, -1, 1),
    Sketcher.Constraint("Coincident", 61, 3, -1, 1),
    Sketcher.Constraint("Coincident", 63, 3, -1, 1),
    Sketcher.Constraint("Equal", 0, 2),
    Sketcher.Constraint("Equal", 2, 4),
    Sketcher.Constraint("Equal", 1, 5),
    Sketcher.Constraint("Equal", 4, 6),
    Sketcher.Constraint("Equal", 3, 7),
    Sketcher.Constraint("Equal", 6, 8),
    Sketcher.Constraint("Equal", 5, 9),
    Sketcher.Constraint("Equal", 8, 10),
    Sketcher.Constraint("Equal", 7, 11),
    Sketcher.Constraint("Equal", 10, 12),
    Sketcher.Constraint("Equal", 9, 13),
    Sketcher.Constraint("Equal", 12, 14),
    Sketcher.Constraint("Equal", 11, 15),
    Sketcher.Constraint("Equal", 14, 16),
    Sketcher.Constraint("Equal", 13, 17),
    Sketcher.Constraint("Equal", 16, 18),
    Sketcher.Constraint("Equal", 15, 19),
    Sketcher.Constraint("Equal", 18, 20),
    Sketcher.Constraint("Equal", 17, 21),
    Sketcher.Constraint("Equal", 20, 22),
    Sketcher.Constraint("Equal", 19, 23),
    Sketcher.Constraint("Equal", 22, 24),
    Sketcher.Constraint("Equal", 21, 25),
    Sketcher.Constraint("Equal", 24, 26),
    Sketcher.Constraint("Equal", 23, 27),
    Sketcher.Constraint("Equal", 26, 28),
    Sketcher.Constraint("Equal", 25, 29),
    Sketcher.Constraint("Equal", 28, 30),
    Sketcher.Constraint("Equal", 27, 31),
    Sketcher.Constraint("Equal", 30, 32),
    Sketcher.Constraint("Equal", 29, 33),
    Sketcher.Constraint("Equal", 32, 34),
    Sketcher.Constraint("Equal", 31, 35),
    Sketcher.Constraint("Equal", 34, 36),
    Sketcher.Constraint("Equal", 33, 37),
    Sketcher.Constraint("Equal", 36, 38),
    Sketcher.Constraint("Equal", 35, 39),
    Sketcher.Constraint("Equal", 38, 40),
    Sketcher.Constraint("Equal", 37, 41),
    Sketcher.Constraint("Equal", 40, 42),
    Sketcher.Constraint("Equal", 39, 43),
    Sketcher.Constraint("Equal", 42, 44),
    Sketcher.Constraint("Equal", 41, 45),
    Sketcher.Constraint("Equal", 44, 46),
    Sketcher.Constraint("Equal", 43, 47),
    Sketcher.Constraint("Equal", 46, 48),
    Sketcher.Constraint("Equal", 45, 49),
    Sketcher.Constraint("Equal", 48, 50),
    Sketcher.Constraint("Equal", 47, 51),
    Sketcher.Constraint("Equal", 50, 52),
    Sketcher.Constraint("Equal", 49, 53),
    Sketcher.Constraint("Equal", 52, 54),
    Sketcher.Constraint("Equal", 51, 55),
    Sketcher.Constraint("Equal", 54, 56),
    Sketcher.Constraint("Equal", 53, 57),
    Sketcher.Constraint("Equal", 56, 58),
    Sketcher.Constraint("Equal", 55, 59),
    Sketcher.Constraint("Equal", 58, 60),
    Sketcher.Constraint("Equal", 57, 61),
    Sketcher.Constraint("Equal", 60, 62),
    Sketcher.Constraint("Equal", 59, 63),
    Sketcher.Constraint("Symmetric", 0, 3, 32, 3, -1, 1),
    Sketcher.Constraint("Symmetric", 2, 3, 34, 3, -1, 1),
    Sketcher.Constraint("Symmetric", 4, 3, 36, 3, -1, 1),
    Sketcher.Constraint("Symmetric", 6, 3, 38, 3, -1, 1),
    Sketcher.Constraint("Symmetric", 8, 3, 40, 3, -1, 1),
    Sketcher.Constraint("Symmetric", 10, 3, 42, 3, -1, 1),
    Sketcher.Constraint("Symmetric", 12, 3, 44, 3, -1, 1),
    Sketcher.Constraint("Symmetric", 14, 3, 46, 3, -1, 1),
    Sketcher.Constraint("Symmetric", 16, 3, 48, 3, -1, 1),
    Sketcher.Constraint("Symmetric", 18, 3, 50, 3, -1, 1),
    Sketcher.Constraint("Symmetric", 20, 3, 52, 3, -1, 1),
    Sketcher.Constraint("Symmetric", 22, 3, 54, 3, -1, 1),
    Sketcher.Constraint("Symmetric", 24, 3, 56, 3, -1, 1),
    Sketcher.Constraint("Symmetric", 26, 3, 58, 3, -1, 1),
    Sketcher.Constraint("Symmetric", 28, 3, 60, 3, -1, 1),
    Sketcher.Constraint("Symmetric", 30, 3, 62, 3, -1, 1),
    Sketcher.Constraint("Symmetric", 30, 3, 32, 3, -2),
    Sketcher.Constraint("Symmetric", 28, 3, 34, 3, -2),
    Sketcher.Constraint("Symmetric", 26, 3, 36, 3, -2),
    Sketcher.Constraint("Symmetric", 24, 3, 38, 3, -2),
    Sketcher.Constraint("Symmetric", 22, 3, 40, 3, -2),
    Sketcher.Constraint("Symmetric", 20, 3, 42, 3, -2),
    Sketcher.Constraint("Symmetric", 18, 3, 44, 3, -2),
    Sketcher.Constraint("Symmetric", 16, 3, 46, 3, -2),
    Sketcher.Constraint("Radius", 0, 1.8),
    Sketcher.Constraint("Radius", 1, 4.7),
    Sketcher.Constraint("Radius", 3, 3.574),
    Sketcher.Constraint("DistanceY", 3, 2, -1, 1, 3.2553),
    Sketcher.Constraint("DistanceX", -1, 1, 5, 2, 2.835899),
    Sketcher.Constraint("DistanceY", 8, 2, -1, 1, 2.835899),
    Sketcher.Constraint("DistanceX", -1, 1, 10, 2, 3.2553),
    Sketcher.Constraint("DistanceY", 0, 3, -1, 1, 3.371078),
    Sketcher.Constraint("DistanceY", 2, 3, -1, 1, 3.84386),
    Sketcher.Constraint("DistanceX", -1, 1, 4, 3, 3.050959),
    Sketcher.Constraint("DistanceY", 6, 3, -1, 1, 3.731449),
    Sketcher.Constraint("DistanceX", -1, 1, 8, 3, 3.731449),
    Sketcher.Constraint("DistanceX", -1, 1, 10, 3, 2.38508),
    Sketcher.Constraint("DistanceX", -1, 1, 12, 3, 3.84386),
    Sketcher.Constraint("DistanceX", -1, 1, 14, 3, 3.371078),
    Sketcher.Constraint("DistanceX", -1, 1, 0, 2, 0.644969),
    Sketcher.Constraint("DistanceY", 13, 2, -1, 1, 0.644969),
    Sketcher.Constraint("DistanceX", 2, 3, -1, 1, 0.470847),
    Sketcher.Constraint("DistanceY", -1, 1, 12, 3, 0.470847),
])
pocket8 = doc.addObject("PartDesign::Pocket", "Pocket007")
body.addObject(pocket8)
pocket8.Profile = sketch16
pocket8.Length = 6

doc.recompute()
